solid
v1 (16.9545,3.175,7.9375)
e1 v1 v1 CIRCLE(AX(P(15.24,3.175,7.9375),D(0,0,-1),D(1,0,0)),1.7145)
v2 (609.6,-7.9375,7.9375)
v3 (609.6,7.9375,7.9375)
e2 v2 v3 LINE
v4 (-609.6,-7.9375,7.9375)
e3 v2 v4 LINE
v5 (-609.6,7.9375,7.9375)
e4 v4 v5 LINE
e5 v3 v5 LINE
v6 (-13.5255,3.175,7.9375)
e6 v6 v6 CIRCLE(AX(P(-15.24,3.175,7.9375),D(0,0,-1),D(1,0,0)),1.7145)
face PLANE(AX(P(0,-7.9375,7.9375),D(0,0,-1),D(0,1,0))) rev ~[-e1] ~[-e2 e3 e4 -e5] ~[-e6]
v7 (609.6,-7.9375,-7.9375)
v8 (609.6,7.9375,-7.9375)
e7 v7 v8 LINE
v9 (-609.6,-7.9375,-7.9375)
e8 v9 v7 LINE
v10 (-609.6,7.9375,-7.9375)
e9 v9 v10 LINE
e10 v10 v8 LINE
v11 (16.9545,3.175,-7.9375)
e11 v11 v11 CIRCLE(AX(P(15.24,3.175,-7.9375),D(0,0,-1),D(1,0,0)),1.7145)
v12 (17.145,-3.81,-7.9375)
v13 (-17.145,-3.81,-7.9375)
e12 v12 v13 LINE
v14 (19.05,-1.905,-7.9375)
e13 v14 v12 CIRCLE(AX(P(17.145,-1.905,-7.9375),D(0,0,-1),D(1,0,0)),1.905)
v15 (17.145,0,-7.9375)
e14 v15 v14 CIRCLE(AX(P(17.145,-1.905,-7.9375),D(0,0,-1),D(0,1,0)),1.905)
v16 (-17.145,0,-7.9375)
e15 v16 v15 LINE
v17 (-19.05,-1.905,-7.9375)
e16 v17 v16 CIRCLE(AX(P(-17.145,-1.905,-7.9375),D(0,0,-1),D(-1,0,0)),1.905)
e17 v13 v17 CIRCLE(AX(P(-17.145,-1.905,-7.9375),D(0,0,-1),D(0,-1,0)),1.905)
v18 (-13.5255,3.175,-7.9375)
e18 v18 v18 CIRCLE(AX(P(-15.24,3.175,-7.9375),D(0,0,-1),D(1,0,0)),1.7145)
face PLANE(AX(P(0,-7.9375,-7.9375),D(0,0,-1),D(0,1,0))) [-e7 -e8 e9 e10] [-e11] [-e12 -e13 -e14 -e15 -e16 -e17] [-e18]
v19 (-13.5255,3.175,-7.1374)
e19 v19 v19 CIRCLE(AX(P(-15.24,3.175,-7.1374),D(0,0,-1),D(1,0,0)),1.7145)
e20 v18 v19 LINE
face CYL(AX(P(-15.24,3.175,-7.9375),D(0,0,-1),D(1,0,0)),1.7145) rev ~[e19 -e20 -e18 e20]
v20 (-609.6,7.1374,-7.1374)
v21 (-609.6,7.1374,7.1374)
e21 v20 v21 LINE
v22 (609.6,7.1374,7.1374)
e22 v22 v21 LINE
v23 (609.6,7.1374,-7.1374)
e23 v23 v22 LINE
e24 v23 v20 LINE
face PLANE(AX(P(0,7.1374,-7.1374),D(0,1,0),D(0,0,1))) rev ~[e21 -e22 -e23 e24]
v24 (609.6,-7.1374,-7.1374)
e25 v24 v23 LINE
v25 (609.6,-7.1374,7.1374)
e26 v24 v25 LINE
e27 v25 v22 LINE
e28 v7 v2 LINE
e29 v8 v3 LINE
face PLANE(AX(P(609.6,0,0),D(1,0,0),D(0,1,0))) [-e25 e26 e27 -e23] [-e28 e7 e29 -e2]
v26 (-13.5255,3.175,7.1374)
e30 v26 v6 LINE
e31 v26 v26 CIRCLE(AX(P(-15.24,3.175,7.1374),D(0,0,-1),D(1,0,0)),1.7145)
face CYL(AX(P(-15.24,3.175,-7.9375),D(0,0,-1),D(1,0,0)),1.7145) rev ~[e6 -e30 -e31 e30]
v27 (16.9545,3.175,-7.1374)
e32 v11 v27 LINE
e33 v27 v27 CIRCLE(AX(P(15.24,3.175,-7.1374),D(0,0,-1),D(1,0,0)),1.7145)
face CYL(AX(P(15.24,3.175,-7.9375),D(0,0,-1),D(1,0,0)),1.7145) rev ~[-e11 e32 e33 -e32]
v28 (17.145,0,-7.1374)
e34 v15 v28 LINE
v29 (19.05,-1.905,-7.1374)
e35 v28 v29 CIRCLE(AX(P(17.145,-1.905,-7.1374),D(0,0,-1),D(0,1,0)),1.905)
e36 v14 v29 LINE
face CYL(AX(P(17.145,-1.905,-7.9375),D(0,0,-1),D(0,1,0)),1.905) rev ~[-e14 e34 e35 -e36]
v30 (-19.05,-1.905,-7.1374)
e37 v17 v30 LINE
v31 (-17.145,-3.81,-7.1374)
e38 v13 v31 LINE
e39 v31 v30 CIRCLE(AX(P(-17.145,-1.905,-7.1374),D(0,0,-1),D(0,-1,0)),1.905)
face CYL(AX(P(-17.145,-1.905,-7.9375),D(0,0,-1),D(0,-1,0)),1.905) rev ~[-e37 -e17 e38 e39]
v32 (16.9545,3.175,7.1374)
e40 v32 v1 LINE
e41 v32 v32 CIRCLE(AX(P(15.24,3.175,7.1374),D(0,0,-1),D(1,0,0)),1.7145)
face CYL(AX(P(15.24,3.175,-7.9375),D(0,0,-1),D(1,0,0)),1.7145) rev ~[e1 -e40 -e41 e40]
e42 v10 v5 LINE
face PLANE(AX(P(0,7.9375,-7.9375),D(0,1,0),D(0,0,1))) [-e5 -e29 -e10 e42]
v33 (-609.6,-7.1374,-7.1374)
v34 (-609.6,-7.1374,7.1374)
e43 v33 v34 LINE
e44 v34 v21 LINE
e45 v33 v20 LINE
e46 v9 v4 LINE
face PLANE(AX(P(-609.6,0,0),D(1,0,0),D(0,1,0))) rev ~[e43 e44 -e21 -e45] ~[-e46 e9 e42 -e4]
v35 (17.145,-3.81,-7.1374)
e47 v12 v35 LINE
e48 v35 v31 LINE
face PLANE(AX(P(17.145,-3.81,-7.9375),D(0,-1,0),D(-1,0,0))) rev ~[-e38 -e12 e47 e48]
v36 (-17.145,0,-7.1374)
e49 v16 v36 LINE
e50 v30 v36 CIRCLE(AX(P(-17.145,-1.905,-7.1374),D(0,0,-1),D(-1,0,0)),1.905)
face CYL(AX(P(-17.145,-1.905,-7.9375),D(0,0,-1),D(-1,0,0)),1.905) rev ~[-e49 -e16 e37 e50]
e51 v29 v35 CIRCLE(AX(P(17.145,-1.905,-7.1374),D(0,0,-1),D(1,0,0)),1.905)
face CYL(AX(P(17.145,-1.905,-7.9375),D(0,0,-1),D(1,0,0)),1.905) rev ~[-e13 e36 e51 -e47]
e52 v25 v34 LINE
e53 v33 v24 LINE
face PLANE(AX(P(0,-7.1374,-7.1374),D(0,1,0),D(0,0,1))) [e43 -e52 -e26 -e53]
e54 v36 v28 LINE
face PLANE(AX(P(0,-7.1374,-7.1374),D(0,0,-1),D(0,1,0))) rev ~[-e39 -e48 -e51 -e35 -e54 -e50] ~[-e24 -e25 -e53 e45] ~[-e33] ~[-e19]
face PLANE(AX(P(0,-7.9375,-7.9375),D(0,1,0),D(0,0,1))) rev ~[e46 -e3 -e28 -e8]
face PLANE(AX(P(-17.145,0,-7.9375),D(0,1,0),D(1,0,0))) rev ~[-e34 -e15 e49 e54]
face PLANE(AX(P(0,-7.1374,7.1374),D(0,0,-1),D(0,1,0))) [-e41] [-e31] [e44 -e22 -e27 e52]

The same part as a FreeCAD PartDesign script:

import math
import FreeCAD as App
import Part
import Sketcher

V = App.Vector
Q = App.Units.Quantity

doc = App.newDocument("Part")
params = doc.addObject("Spreadsheet::Sheet", "Params")
for row, (alias, value) in enumerate([
    ("sketch1_width", "0.625 in"),
    ("sketch1_width2", "0.562 in"),
    ("pad1_length", "48 in"),
    ("sketch2_radius", "0.075 in"),
    ("sketch2_width", "1.35 in"),
    ("pocket1_length", "0.2 in"),
    ("sketch3_diameter", "0.135 in"),
], start=1):
    params.set(f"A{row}", alias)
    params.set(f"B{row}", "=" + value)
    params.setAlias(f"B{row}", alias)

body = doc.addObject("PartDesign::Body", "Body")

sketch1 = body.newObject("Sketcher::SketchObject", "Sketch")
sketch1.AttachmentSupport = (doc.getObject("YZ_Plane"), [""])
sketch1.MapMode = "FlatFace"
sketch1.addGeometry([
    Part.LineSegment(V(-8, 8, 0), V(-8, -8, 0)),
    Part.LineSegment(V(-8, -8, 0), V(8, -8, 0)),
    Part.LineSegment(V(8, -8, 0), V(8, 8, 0)),
    Part.LineSegment(V(8, 8, 0), V(-8, 8, 0)),
    Part.LineSegment(V(7, -7, 0), V(-7, -7, 0)),
    Part.LineSegment(V(-7, -7, 0), V(-7, 7, 0)),
    Part.LineSegment(V(-7, 7, 0), V(7, 7, 0)),
    Part.LineSegment(V(7, 7, 0), V(7, -7, 0)),
], False)
sketch1.addConstraint([
    Sketcher.Constraint("Coincident", 0, 2, 1, 1),
    Sketcher.Constraint("Coincident", 1, 2, 2, 1),
    Sketcher.Constraint("Coincident", 2, 2, 3, 1),
    Sketcher.Constraint("Coincident", 3, 2, 0, 1),
    Sketcher.Constraint("Coincident", 4, 2, 5, 1),
    Sketcher.Constraint("Coincident", 5, 2, 6, 1),
    Sketcher.Constraint("Coincident", 6, 2, 7, 1),
    Sketcher.Constraint("Coincident", 7, 2, 4, 1),
    Sketcher.Constraint("Vertical", 0),
    Sketcher.Constraint("Horizontal", 1),
    Sketcher.Constraint("Vertical", 2),
    Sketcher.Constraint("Horizontal", 3),
    Sketcher.Constraint("Horizontal", 4),
    Sketcher.Constraint("Vertical", 5),
    Sketcher.Constraint("Horizontal", 6),
    Sketcher.Constraint("Vertical", 7),
    Sketcher.Constraint("Symmetric", 0, 2, 2, 2, -1, 1),
    Sketcher.Constraint("Symmetric", 4, 2, 6, 2, -1, 1),
    Sketcher.Constraint("Equal", 3, 0),
    Sketcher.Constraint("Equal", 6, 5),
    Sketcher.Constraint("DistanceX", 1, 1, 1, 2, Q("0.625 in")),
    Sketcher.Constraint("DistanceX", 4, 2, 4, 1, Q("0.562 in")),
])
sketch1.setExpression("Constraints[20]", "Params.sketch1_width")
sketch1.setExpression("Constraints[21]", "Params.sketch1_width2")
pad1 = body.newObject("PartDesign::Pad", "Pad")
pad1.Profile = sketch1
pad1.setExpression("Length", "Params.pad1_length")
pad1.Midplane = True

sketch2 = body.newObject("Sketcher::SketchObject", "Sketch001")
sketch2.AttachmentSupport = (doc.getObject("XY_Plane"), [""])
sketch2.MapMode = "FlatFace"
sketch2.AttachmentOffset = App.Placement(V(0, 0, -0.3125 * 25.4), App.Rotation())
sketch2.addGeometry([
    Part.LineSegment(V(-17.1, 0, 0), V(17.1, 0, 0)),
    Part.ArcOfCircle(Part.Circle(V(17.1, -1.9, 0), V(0, 0, 1), 1.9), math.radians(0), math.radians(90)),
    Part.ArcOfCircle(Part.Circle(V(17.1, -1.9, 0), V(0, 0, 1), 1.9), math.radians(-90), math.radians(0)),
    Part.LineSegment(V(17.1, -3.8, 0), V(-17.1, -3.8, 0)),
    Part.ArcOfCircle(Part.Circle(V(-17.1, -1.9, 0), V(0, 0, 1), 1.9), math.radians(180), math.radians(270)),
    Part.ArcOfCircle(Part.Circle(V(-17.1, -1.9, 0), V(0, 0, 1), 1.9), math.radians(90), math.radians(180)),
], False)
sketch2.addConstraint([
    Sketcher.Constraint("Tangent", 0, 2, 1, 2),
    Sketcher.Constraint("Tangent", 1, 1, 2, 2),
    Sketcher.Constraint("Tangent", 2, 1, 3, 1),
    Sketcher.Constraint("Tangent", 3, 2, 4, 2),
    Sketcher.Constraint("Tangent", 4, 1, 5, 2),
    Sketcher.Constraint("Tangent", 5, 1, 0, 1),
    Sketcher.Constraint("Horizontal", 0),
    Sketcher.Constraint("Horizontal", 3),
    Sketcher.Constraint("Equal", 1, 2),
    Sketcher.Constraint("Equal", 2, 4),
    Sketcher.Constraint("Symmetric", 0, 2, 5, 1, -1, 1),
    Sketcher.Constraint("Horizontal", 5, 3, 1, 1),
    Sketcher.Constraint("Horizontal", 1, 1, 4, 1),
    Sketcher.Constraint("Radius", 1, Q("0.075 in")),
    Sketcher.Constraint("DistanceX", 0, 1, 0, 2, Q("1.35 in")),
])
sketch2.setExpression("Constraints[13]", "Params.sketch2_radius")
sketch2.setExpression("Constraints[14]", "Params.sketch2_width")
pocket1 = body.newObject("PartDesign::Pocket", "Pocket")
pocket1.Profile = sketch2
pocket1.setExpression("Length", "Params.pocket1_length")
pocket1.Reversed = True

sketch3 = body.newObject("Sketcher::SketchObject", "Sketch002")
sketch3.AttachmentSupport = (doc.getObject("XY_Plane"), [""])
sketch3.MapMode = "FlatFace"
sketch3.AttachmentOffset = App.Placement(V(0, 0, -0.3125 * 25.4), App.Rotation())
sketch3.addGeometry([
    Part.Circle(V(-15.2, 3.2, 0), V(0, 0, 1), 1.7),
    Part.Circle(V(15.2, 3.2, 0), V(0, 0, 1), 1.7),
], False)
sketch3.addConstraint([
    Sketcher.Constraint("Equal", 0, 1),
    Sketcher.Constraint("Symmetric", 0, 3, 1, 3, -2),
    Sketcher.Constraint("Diameter", 0, Q("0.135 in")),
    Sketcher.Constraint("DistanceX", 0, 3, -1, 1, Q("0.6 in")),
    Sketcher.Constraint("DistanceY", -1, 1, 0, 3, Q("0.125 in")),
])
sketch3.setExpression("Constraints[2]", "Params.sketch3_diameter")
pocket2 = body.newObject("PartDesign::Pocket", "Pocket001")
pocket2.Profile = sketch3
pocket2.Type = "ThroughAll"
pocket2.Reversed = True

doc.recompute()
